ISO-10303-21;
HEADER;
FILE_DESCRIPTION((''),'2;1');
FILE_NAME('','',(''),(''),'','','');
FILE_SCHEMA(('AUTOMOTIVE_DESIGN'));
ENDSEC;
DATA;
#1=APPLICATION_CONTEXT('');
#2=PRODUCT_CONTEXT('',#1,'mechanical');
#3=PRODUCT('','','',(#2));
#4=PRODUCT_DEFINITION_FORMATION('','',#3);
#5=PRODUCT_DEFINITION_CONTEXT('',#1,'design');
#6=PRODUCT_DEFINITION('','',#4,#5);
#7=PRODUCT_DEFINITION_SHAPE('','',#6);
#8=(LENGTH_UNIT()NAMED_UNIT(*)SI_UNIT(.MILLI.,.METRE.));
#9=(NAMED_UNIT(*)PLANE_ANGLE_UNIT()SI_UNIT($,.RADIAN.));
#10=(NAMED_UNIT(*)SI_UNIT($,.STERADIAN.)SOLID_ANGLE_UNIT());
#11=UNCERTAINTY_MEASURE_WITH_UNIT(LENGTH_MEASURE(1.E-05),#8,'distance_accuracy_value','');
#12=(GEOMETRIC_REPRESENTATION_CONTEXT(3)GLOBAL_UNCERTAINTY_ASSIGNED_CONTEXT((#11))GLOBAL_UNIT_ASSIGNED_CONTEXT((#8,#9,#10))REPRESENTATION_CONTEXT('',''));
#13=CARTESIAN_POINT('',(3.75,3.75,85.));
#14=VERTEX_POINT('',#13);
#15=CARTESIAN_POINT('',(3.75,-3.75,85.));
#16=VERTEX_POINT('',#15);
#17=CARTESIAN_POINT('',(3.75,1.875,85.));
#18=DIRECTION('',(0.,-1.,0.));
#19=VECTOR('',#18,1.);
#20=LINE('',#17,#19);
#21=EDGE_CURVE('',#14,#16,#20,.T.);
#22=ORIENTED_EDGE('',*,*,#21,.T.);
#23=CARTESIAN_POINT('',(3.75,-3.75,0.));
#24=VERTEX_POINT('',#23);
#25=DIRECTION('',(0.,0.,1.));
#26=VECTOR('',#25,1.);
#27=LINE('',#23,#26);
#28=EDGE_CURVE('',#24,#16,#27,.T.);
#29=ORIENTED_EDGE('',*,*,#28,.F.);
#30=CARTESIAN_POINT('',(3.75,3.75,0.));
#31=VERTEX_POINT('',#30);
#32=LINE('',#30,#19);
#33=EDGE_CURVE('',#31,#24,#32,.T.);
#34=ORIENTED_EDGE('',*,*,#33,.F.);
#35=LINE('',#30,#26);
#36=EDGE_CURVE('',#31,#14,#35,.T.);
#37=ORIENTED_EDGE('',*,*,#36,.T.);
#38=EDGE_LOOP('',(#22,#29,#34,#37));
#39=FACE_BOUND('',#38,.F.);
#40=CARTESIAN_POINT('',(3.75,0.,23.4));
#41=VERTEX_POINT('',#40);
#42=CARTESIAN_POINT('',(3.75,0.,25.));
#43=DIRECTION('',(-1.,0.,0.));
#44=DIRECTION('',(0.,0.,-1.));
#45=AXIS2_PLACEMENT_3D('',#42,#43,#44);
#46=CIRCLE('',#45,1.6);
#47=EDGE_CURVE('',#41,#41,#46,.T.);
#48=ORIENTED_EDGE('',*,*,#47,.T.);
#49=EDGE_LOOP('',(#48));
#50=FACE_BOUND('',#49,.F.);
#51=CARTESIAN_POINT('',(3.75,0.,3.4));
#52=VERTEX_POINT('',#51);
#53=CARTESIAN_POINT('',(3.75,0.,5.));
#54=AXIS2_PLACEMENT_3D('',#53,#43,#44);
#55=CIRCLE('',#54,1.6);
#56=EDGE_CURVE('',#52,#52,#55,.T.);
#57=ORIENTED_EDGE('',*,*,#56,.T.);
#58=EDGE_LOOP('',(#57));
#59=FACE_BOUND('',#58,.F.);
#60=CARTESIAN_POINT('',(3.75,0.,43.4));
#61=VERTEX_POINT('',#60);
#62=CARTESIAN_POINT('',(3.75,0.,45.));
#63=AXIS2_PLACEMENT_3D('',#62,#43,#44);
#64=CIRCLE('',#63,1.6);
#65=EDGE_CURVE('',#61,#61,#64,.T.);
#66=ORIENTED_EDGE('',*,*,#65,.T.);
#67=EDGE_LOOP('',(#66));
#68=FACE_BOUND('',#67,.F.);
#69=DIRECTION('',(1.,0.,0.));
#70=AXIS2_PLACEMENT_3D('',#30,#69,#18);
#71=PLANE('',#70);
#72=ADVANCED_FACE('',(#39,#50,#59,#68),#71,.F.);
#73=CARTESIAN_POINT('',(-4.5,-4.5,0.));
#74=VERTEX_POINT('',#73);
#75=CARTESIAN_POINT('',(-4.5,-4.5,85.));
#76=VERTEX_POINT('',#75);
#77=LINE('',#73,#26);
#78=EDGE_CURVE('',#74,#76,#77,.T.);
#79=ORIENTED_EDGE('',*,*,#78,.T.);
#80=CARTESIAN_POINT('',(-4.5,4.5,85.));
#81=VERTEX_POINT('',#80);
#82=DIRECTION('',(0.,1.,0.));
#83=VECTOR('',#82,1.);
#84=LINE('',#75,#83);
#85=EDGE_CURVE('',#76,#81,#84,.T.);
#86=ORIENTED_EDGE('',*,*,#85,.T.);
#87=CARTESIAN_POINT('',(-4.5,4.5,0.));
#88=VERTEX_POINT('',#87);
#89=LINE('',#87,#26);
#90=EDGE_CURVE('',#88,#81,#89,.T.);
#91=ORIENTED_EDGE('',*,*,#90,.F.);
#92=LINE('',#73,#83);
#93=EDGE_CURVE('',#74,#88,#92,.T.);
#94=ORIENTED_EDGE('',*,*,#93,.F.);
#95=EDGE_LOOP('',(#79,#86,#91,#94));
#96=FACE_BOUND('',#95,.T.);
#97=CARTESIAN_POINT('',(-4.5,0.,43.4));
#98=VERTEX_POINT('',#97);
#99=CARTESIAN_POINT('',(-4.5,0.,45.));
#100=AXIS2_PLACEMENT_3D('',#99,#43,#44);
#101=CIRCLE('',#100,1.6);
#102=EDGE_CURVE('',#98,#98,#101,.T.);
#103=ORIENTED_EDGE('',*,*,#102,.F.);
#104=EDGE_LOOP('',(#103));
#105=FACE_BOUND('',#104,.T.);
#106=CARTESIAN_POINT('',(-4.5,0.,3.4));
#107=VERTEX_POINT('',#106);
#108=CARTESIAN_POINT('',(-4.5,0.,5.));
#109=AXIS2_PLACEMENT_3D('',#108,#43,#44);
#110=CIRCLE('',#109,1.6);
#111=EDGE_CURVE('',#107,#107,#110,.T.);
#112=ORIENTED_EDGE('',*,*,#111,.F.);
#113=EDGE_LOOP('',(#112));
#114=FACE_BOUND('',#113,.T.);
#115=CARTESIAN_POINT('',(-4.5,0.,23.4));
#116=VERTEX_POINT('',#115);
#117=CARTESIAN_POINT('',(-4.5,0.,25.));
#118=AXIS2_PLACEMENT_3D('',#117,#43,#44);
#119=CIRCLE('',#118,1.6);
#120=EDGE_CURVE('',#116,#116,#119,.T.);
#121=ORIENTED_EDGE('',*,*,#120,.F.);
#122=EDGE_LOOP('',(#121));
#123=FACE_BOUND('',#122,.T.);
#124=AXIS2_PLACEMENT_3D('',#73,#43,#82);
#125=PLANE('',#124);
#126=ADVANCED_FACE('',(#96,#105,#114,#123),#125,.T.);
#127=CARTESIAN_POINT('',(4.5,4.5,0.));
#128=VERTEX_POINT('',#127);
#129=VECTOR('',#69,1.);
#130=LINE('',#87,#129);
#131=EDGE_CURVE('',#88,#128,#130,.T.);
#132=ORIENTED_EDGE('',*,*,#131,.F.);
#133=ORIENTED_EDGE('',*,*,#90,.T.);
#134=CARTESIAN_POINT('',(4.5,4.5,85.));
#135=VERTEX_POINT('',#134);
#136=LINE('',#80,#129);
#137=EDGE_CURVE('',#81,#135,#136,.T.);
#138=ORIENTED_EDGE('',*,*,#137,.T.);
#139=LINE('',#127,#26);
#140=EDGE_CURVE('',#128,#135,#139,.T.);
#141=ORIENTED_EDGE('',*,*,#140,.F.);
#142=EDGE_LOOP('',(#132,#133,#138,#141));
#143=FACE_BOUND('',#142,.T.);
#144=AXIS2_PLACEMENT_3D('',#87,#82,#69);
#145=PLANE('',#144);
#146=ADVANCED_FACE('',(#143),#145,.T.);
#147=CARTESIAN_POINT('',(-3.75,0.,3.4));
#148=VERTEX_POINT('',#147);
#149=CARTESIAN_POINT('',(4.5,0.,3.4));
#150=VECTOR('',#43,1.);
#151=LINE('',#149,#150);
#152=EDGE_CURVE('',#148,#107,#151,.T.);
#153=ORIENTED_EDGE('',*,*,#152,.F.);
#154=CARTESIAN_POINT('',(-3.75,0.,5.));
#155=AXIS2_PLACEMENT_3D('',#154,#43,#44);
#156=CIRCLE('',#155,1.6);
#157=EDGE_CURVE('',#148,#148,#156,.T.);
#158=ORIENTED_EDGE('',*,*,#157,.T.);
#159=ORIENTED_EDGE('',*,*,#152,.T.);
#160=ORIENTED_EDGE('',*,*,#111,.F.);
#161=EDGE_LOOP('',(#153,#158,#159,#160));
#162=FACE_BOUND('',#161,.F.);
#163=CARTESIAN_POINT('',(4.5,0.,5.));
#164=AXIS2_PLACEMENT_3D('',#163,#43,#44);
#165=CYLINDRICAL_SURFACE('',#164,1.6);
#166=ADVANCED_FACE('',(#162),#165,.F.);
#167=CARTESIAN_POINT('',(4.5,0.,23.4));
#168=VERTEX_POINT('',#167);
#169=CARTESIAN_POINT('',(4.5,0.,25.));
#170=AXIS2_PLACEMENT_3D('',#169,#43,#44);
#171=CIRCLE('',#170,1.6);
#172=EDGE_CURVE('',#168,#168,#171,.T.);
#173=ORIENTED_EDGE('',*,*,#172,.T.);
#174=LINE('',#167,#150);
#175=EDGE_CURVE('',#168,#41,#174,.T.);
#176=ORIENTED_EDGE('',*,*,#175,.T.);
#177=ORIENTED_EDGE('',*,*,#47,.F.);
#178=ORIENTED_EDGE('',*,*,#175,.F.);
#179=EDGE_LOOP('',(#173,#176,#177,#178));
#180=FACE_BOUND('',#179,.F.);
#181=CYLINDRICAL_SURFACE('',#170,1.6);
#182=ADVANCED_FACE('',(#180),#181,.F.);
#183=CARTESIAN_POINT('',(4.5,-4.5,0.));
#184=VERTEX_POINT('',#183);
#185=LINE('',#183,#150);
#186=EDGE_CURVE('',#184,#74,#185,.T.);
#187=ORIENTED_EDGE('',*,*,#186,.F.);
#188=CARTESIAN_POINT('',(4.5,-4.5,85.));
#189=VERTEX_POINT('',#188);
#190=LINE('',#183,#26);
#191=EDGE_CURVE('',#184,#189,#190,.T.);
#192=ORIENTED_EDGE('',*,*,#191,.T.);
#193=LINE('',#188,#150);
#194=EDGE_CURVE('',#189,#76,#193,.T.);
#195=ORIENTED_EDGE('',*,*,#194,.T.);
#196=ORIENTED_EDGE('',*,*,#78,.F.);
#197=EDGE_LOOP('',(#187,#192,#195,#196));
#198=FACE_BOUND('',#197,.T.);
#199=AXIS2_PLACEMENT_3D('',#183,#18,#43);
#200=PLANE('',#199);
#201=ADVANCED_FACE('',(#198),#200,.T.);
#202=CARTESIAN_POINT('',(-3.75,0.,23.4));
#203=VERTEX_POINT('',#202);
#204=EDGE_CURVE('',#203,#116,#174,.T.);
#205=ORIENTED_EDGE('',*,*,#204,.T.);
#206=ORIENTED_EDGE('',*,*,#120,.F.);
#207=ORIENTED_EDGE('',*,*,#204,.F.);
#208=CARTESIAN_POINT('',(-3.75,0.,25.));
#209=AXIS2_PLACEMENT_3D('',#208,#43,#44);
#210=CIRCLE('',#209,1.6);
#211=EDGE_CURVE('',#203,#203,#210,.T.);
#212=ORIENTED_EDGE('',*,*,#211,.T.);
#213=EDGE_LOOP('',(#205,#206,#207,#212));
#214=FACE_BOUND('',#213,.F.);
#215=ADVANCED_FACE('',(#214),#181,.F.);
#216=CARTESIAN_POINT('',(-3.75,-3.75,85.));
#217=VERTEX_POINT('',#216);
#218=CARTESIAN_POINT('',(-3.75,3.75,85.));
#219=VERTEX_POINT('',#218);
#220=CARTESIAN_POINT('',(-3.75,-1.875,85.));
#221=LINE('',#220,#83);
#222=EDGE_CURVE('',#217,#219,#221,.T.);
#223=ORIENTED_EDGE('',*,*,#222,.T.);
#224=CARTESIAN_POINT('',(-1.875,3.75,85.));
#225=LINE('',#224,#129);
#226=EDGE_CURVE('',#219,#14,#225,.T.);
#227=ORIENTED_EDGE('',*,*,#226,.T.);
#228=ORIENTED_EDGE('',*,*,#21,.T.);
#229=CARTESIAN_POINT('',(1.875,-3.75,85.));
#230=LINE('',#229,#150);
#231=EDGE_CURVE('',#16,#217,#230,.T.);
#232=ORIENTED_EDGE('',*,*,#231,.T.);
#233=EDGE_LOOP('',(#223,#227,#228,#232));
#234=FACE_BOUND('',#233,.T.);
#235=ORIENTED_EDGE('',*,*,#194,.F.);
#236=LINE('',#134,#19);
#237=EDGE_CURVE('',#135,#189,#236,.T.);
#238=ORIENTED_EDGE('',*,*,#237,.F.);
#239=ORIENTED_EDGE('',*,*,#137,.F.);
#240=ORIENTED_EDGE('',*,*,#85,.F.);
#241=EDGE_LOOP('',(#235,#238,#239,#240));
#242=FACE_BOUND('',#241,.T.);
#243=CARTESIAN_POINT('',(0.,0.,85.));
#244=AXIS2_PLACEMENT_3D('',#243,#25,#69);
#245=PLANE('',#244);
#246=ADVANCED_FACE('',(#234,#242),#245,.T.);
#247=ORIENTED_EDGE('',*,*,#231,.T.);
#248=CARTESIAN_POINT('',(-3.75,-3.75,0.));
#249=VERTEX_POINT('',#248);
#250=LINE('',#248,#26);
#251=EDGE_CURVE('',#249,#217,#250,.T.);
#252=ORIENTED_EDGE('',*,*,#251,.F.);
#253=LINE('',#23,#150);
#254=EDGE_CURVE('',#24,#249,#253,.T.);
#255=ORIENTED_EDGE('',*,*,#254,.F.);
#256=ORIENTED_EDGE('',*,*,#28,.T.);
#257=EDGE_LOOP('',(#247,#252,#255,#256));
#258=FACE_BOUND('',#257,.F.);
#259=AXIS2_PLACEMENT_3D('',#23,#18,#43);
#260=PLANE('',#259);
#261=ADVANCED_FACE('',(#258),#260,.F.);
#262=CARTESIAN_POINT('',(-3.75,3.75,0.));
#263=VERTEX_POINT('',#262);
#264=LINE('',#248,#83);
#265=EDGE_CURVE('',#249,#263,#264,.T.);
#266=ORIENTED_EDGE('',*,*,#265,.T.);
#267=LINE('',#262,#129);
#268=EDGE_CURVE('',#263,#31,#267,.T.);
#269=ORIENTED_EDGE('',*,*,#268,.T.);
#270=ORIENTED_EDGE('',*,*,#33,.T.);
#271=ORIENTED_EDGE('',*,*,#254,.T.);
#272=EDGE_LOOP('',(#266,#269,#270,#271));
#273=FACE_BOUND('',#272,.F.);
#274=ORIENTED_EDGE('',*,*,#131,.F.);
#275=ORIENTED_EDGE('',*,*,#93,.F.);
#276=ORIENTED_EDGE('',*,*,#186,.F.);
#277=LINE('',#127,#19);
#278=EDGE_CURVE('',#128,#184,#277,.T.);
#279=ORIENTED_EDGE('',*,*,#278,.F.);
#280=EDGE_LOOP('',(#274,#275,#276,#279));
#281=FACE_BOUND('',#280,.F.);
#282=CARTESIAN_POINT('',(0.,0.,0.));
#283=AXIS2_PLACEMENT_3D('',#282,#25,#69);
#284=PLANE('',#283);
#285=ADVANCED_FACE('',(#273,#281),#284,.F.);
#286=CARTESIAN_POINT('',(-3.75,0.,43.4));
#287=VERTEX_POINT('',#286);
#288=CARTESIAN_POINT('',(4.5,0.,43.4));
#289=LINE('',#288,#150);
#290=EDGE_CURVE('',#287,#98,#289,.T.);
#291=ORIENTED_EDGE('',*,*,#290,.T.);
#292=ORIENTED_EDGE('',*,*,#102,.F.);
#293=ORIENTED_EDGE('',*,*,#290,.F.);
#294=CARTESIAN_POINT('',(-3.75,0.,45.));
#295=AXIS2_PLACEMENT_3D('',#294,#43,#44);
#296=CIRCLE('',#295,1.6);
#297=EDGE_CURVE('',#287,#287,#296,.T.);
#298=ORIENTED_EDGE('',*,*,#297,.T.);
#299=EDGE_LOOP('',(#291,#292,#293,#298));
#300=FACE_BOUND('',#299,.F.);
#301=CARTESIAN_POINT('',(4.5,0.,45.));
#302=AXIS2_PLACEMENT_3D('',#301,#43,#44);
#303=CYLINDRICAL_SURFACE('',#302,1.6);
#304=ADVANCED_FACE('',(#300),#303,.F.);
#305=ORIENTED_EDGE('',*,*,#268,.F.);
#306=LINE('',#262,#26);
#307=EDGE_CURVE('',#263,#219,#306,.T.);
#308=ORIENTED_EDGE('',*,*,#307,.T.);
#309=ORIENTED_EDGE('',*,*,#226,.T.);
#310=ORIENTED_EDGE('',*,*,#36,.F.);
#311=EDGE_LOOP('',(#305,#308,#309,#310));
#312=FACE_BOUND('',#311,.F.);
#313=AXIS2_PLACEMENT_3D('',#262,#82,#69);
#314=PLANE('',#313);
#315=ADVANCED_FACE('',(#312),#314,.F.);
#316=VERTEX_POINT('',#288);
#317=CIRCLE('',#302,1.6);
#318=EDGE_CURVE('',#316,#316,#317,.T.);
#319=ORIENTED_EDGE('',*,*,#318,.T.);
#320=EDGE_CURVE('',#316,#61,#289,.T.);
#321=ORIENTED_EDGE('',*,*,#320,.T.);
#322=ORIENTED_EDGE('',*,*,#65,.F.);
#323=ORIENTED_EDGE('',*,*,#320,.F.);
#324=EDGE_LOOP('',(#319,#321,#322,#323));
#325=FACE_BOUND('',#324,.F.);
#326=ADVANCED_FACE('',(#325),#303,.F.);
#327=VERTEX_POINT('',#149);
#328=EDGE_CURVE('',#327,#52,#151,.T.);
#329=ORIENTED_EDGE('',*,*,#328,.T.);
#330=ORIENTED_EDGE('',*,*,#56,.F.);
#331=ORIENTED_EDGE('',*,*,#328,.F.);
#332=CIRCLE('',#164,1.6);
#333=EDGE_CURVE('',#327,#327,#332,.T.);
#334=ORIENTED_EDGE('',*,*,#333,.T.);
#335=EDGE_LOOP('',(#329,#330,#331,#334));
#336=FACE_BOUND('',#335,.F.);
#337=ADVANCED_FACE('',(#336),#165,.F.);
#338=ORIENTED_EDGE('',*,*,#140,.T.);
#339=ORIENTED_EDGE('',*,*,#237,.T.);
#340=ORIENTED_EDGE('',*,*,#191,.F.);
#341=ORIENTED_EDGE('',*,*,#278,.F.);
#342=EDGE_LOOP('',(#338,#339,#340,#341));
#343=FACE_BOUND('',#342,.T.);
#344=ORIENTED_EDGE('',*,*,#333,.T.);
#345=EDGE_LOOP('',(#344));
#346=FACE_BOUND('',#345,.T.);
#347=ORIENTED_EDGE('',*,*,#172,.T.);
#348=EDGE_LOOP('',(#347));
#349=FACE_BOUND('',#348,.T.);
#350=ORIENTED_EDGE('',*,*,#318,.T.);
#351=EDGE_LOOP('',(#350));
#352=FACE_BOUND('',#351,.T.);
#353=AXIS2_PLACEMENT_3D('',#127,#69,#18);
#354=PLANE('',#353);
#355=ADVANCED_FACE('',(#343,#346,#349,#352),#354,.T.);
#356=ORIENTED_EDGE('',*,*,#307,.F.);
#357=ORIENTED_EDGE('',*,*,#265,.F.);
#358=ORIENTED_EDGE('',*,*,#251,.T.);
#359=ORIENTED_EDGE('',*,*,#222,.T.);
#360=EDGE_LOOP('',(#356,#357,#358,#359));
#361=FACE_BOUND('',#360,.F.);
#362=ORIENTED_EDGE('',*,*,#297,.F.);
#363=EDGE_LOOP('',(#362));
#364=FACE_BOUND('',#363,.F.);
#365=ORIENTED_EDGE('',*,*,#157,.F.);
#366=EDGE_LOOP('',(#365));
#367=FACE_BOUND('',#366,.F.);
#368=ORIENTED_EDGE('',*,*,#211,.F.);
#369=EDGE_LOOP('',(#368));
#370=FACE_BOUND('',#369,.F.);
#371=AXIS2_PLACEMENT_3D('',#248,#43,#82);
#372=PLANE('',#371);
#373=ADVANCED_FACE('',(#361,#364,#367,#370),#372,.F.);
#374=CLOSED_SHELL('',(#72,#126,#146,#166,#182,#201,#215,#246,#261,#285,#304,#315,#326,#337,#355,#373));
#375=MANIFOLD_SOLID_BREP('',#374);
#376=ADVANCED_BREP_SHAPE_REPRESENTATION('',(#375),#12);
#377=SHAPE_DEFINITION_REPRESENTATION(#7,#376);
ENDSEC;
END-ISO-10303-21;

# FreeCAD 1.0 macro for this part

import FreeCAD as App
import Part
import Sketcher
from FreeCAD import Vector


def add_polygon(sketch, points):
    """Adds a closed chain of lines whose ends are joined by coincident constraints."""
    first, n = sketch.GeometryCount, len(points)
    for a, b in zip(points, points[1:] + points[:1]):
        sketch.addGeometry(Part.LineSegment(App.Vector(*a, 0), App.Vector(*b, 0)), False)
    for i in range(n):
        sketch.addConstraint(Sketcher.Constraint("Coincident", first + i, 2, first + (i + 1) % n, 1))

doc = App.newDocument("Part")
params = doc.addObject("Spreadsheet::Sheet", "Params")
for row, (alias, value) in enumerate([
    ("sketch1_width", "9 mm"),
    ("sketch1_width2", "7.5 mm"),
    ("pad1_length", "90 mm"),
    ("sketch2_diameter", "3.2 mm"),
    ("hole_diameter", "3.2 mm"),
    ("sketch3_width", "9 mm"),
    ("pocket1_length", "5 mm"),
], start=1):
    params.set(f"A{row}", alias)
    params.set(f"B{row}", "=" + value)
    params.setAlias(f"B{row}", alias)

body = doc.addObject("PartDesign::Body", "Body")

sketch1 = body.newObject("Sketcher::SketchObject", "Sketch")
sketch1.AttachmentSupport = (doc.getObject("XY_Plane"), [""])
sketch1.MapMode = "FlatFace"
add_polygon(sketch1, [(-4, -4), (4, -4), (4, 4), (-4, 4)])
add_polygon(sketch1, [(4, 4), (4, -4), (-4, -4), (-4, 4)])
sketch1.addConstraint(Sketcher.Constraint("Horizontal", 0))
sketch1.addConstraint(Sketcher.Constraint("Vertical", 1))
sketch1.addConstraint(Sketcher.Constraint("Horizontal", 2))
sketch1.addConstraint(Sketcher.Constraint("Vertical", 3))
sketch1.addConstraint(Sketcher.Constraint("Vertical", 4))
sketch1.addConstraint(Sketcher.Constraint("Horizontal", 5))
sketch1.addConstraint(Sketcher.Constraint("Vertical", 6))
sketch1.addConstraint(Sketcher.Constraint("Horizontal", 7))
sketch1.addConstraint(Sketcher.Constraint("Symmetric", 0, 2, 2, 2, -1, 1))
sketch1.addConstraint(Sketcher.Constraint("Symmetric", 4, 2, 6, 2, -1, 1))
sketch1.addConstraint(Sketcher.Constraint("Equal", 2, 1))
sketch1.addConstraint(Sketcher.Constraint("Equal", 7, 4))
sketch1.addConstraint(Sketcher.Constraint("DistanceX", 0, 1, 0, 2, 9.0))
sketch1.addConstraint(Sketcher.Constraint("DistanceX", 5, 2, 5, 1, 7.5))
sketch1.setExpression("Constraints[20]", "Params.sketch1_width")
sketch1.setExpression("Constraints[21]", "Params.sketch1_width2")
pad1 = body.newObject("PartDesign::Pad", "Pad")
pad1.Profile = sketch1
pad1.setExpression("Length", "Params.pad1_length")

sketch2 = body.newObject("Sketcher::SketchObject", "Sketch001")
sketch2.AttachmentSupport = (doc.getObject("YZ_Plane"), [""])
sketch2.MapMode = "FlatFace"
sketch2.AttachmentOffset = App.Placement(Vector(0, 0, 4.5), App.Rotation())
sketch2.addGeometry(Part.Circle(Vector(0, 5, 0), Vector(0, 0, 1), 1.6), False)
sketch2.addGeometry(Part.Circle(Vector(0, 25, 0), Vector(0, 0, 1), 1.6), False)
sketch2.addGeometry(Part.Circle(Vector(0, 45, 0), Vector(0, 0, 1), 1.6), False)
sketch2.addConstraint(Sketcher.Constraint("Equal", 0, 1))
sketch2.addConstraint(Sketcher.Constraint("Equal", 1, 2))
sketch2.addConstraint(Sketcher.Constraint("PointOnObject", 0, 3, -2))
sketch2.addConstraint(Sketcher.Constraint("PointOnObject", 1, 3, -2))
sketch2.addConstraint(Sketcher.Constraint("PointOnObject", 2, 3, -2))
sketch2.addConstraint(Sketcher.Constraint("Diameter", 0, 3.2))
sketch2.addConstraint(Sketcher.Constraint("DistanceY", -1, 1, 0, 3, 5.0))
sketch2.addConstraint(Sketcher.Constraint("DistanceY", -1, 1, 1, 3, 25.0))
sketch2.addConstraint(Sketcher.Constraint("DistanceY", -1, 1, 2, 3, 45.0))
sketch2.setExpression("Constraints[5]", "Params.sketch2_diameter")
doc.recompute()
hole = body.newObject("PartDesign::Hole", "Hole")
hole.Profile = sketch2
hole.ThreadType = "None"
hole.setExpression("Diameter", "Params.hole_diameter")
hole.DepthType = "ThroughAll"

sketch3 = body.newObject("Sketcher::SketchObject", "Sketch002")
sketch3.AttachmentSupport = (doc.getObject("XY_Plane"), [""])
sketch3.MapMode = "FlatFace"
sketch3.AttachmentOffset = App.Placement(Vector(0, 0, 90), App.Rotation())
add_polygon(sketch3, [(-4, -4), (4, -4), (4, 4), (-4, 4)])
sketch3.addConstraint(Sketcher.Constraint("Horizontal", 0))
sketch3.addConstraint(Sketcher.Constraint("Vertical", 1))
sketch3.addConstraint(Sketcher.Constraint("Horizontal", 2))
sketch3.addConstraint(Sketcher.Constraint("Vertical", 3))
sketch3.addConstraint(Sketcher.Constraint("Symmetric", 0, 2, 2, 2, -1, 1))
sketch3.addConstraint(Sketcher.Constraint("Equal", 2, 1))
sketch3.addConstraint(Sketcher.Constraint("DistanceX", 0, 1, 0, 2, 9.0))
sketch3.setExpression("Constraints[10]", "Params.sketch3_width")
pocket1 = body.newObject("PartDesign::Pocket", "Pocket")
pocket1.Profile = sketch3
pocket1.setExpression("Length", "Params.pocket1_length")

doc.recompute()
